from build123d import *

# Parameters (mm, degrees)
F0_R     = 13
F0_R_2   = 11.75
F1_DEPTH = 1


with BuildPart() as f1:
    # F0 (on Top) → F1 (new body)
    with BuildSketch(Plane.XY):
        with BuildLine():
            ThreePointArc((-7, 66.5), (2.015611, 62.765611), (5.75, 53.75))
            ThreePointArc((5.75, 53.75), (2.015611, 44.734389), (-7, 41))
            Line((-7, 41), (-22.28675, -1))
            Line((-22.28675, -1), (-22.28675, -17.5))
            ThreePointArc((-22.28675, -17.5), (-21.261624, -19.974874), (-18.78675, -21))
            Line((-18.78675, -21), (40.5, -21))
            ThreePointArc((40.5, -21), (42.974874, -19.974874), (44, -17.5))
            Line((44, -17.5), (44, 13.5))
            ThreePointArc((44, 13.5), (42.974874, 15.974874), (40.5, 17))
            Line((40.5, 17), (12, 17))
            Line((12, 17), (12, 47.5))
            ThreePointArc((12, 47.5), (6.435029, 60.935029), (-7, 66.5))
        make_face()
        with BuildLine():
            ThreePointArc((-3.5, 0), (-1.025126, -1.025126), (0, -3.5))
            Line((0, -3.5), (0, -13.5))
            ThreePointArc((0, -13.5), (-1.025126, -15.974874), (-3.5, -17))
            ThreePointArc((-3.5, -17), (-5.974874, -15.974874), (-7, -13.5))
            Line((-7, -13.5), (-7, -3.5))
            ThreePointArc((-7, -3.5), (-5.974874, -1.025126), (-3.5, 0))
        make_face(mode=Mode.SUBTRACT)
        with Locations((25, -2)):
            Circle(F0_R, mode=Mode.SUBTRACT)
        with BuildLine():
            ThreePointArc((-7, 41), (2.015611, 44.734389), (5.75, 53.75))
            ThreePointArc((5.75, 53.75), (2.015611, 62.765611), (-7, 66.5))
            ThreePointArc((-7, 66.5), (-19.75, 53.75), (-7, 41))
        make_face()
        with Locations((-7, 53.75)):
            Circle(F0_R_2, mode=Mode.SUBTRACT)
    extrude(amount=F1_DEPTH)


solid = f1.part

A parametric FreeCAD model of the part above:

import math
import FreeCAD as App
import Part
import Sketcher
Q = App.Units.Quantity

doc = App.newDocument("Part")
params = doc.addObject("Spreadsheet::Sheet", "Params")
for row, (alias, value) in enumerate([
    ("sketch1_diameter", "26 mm"),
    ("sketch1_radius", "18.999999 mm"),
    ("sketch1_diameter2", "23.5 mm"),
    ("sketch1_radius2", "3.499999 mm"),
    ("sketch1_height", "31 mm"),
    ("pad1_length", "1 mm"),
], start=1):
    params.set(f"A{row}", alias)
    params.set(f"B{row}", "=" + value)
    params.setAlias(f"B{row}", alias)

body = doc.addObject("PartDesign::Body", "Body")

sketch1 = body.newObject("Sketcher::SketchObject", "Sketch")
sketch1.AttachmentSupport = (doc.getObject("XY_Plane"), [""])
sketch1.MapMode = "FlatFace"
sketch1.addGeometry(Part.ArcOfCircle(Part.Circle(App.Vector(-7, 47.5, 0), App.Vector(0, 0, 1), 19), math.radians(0), math.radians(90)), False)
sketch1.addGeometry(Part.ArcOfCircle(Part.Circle(App.Vector(-7, 53.8, 0), App.Vector(0, 0, 1), 12.8), math.radians(90), math.radians(270)), False)
sketch1.addGeometry(Part.LineSegment(App.Vector(-7, 41, 0), App.Vector(-22.3, -1, 0)), False)
sketch1.addGeometry(Part.LineSegment(App.Vector(-22.3, -1, 0), App.Vector(-22.3, -17.5, 0)), False)
sketch1.addGeometry(Part.ArcOfCircle(Part.Circle(App.Vector(-18.8, -17.5, 0), App.Vector(0, 0, 1), 3.5), math.radians(180), math.radians(270)), False)
sketch1.addGeometry(Part.LineSegment(App.Vector(-18.8, -21, 0), App.Vector(40.5, -21, 0)), False)
sketch1.addGeometry(Part.ArcOfCircle(Part.Circle(App.Vector(40.5, -17.5, 0), App.Vector(0, 0, 1), 3.5), math.radians(-90), math.radians(0)), False)
sketch1.addGeometry(Part.LineSegment(App.Vector(44, -17.5, 0), App.Vector(44, 13.5, 0)), False)
sketch1.addGeometry(Part.ArcOfCircle(Part.Circle(App.Vector(40.5, 13.5, 0), App.Vector(0, 0, 1), 3.5), math.radians(0), math.radians(90)), False)
sketch1.addGeometry(Part.LineSegment(App.Vector(40.5, 17, 0), App.Vector(12, 17, 0)), False)
sketch1.addGeometry(Part.LineSegment(App.Vector(12, 17, 0), App.Vector(12, 47.5, 0)), False)
sketch1.addGeometry(Part.ArcOfCircle(Part.Circle(App.Vector(-3.5, -3.5, 0), App.Vector(0, 0, 1), 3.5), math.radians(90), math.radians(180)), False)
sketch1.addGeometry(Part.ArcOfCircle(Part.Circle(App.Vector(-3.5, -3.5, 0), App.Vector(0, 0, 1), 3.5), math.radians(0), math.radians(90)), False)
sketch1.addGeometry(Part.LineSegment(App.Vector(0, -3.5, 0), App.Vector(0, -13.5, 0)), False)
sketch1.addGeometry(Part.ArcOfCircle(Part.Circle(App.Vector(-3.5, -13.5, 0), App.Vector(0, 0, 1), 3.5), math.radians(-90), math.radians(0)), False)
sketch1.addGeometry(Part.ArcOfCircle(Part.Circle(App.Vector(-3.5, -13.5, 0), App.Vector(0, 0, 1), 3.5), math.radians(180), math.radians(270)), False)
sketch1.addGeometry(Part.LineSegment(App.Vector(-7, -13.5, 0), App.Vector(-7, -3.5, 0)), False)
sketch1.addGeometry(Part.Circle(App.Vector(25, -2, 0), App.Vector(0, 0, 1), 13), False)
sketch1.addGeometry(Part.Circle(App.Vector(-7, 53.8, 0), App.Vector(0, 0, 1), 11.8), False)
sketch1.addConstraint(Sketcher.Constraint("Tangent", 0, 2, 1, 1))
sketch1.addConstraint(Sketcher.Constraint("Coincident", 1, 2, 2, 1))
sketch1.addConstraint(Sketcher.Constraint("Coincident", 2, 2, 3, 1))
sketch1.addConstraint(Sketcher.Constraint("Tangent", 3, 2, 4, 1))
sketch1.addConstraint(Sketcher.Constraint("Tangent", 4, 2, 5, 1))
sketch1.addConstraint(Sketcher.Constraint("Tangent", 5, 2, 6, 1))
sketch1.addConstraint(Sketcher.Constraint("Tangent", 6, 2, 7, 1))
sketch1.addConstraint(Sketcher.Constraint("Tangent", 7, 2, 8, 1))
sketch1.addConstraint(Sketcher.Constraint("Tangent", 8, 2, 9, 1))
sketch1.addConstraint(Sketcher.Constraint("Coincident", 9, 2, 10, 1))
sketch1.addConstraint(Sketcher.Constraint("Tangent", 10, 2, 0, 1))
sketch1.addConstraint(Sketcher.Constraint("Tangent", 11, 1, 12, 2))
sketch1.addConstraint(Sketcher.Constraint("Tangent", 12, 1, 13, 1))
sketch1.addConstraint(Sketcher.Constraint("Tangent", 13, 2, 14, 2))
sketch1.addConstraint(Sketcher.Constraint("Tangent", 14, 1, 15, 2))
sketch1.addConstraint(Sketcher.Constraint("Tangent", 15, 1, 16, 1))
sketch1.addConstraint(Sketcher.Constraint("Tangent", 16, 2, 11, 2))
sketch1.addConstraint(Sketcher.Constraint("Vertical", 3))
sketch1.addConstraint(Sketcher.Constraint("Horizontal", 5))
sketch1.addConstraint(Sketcher.Constraint("Vertical", 7))
sketch1.addConstraint(Sketcher.Constraint("Horizontal", 9))
sketch1.addConstraint(Sketcher.Constraint("Vertical", 10))
sketch1.addConstraint(Sketcher.Constraint("Vertical", 13))
sketch1.addConstraint(Sketcher.Constraint("Vertical", 16))
sketch1.addConstraint(Sketcher.Constraint("Coincident", 18, 3, 1, 3))
sketch1.addConstraint(Sketcher.Constraint("Equal", 4, 6))
sketch1.addConstraint(Sketcher.Constraint("Equal", 6, 8))
sketch1.addConstraint(Sketcher.Constraint("Equal", 8, 11))
sketch1.addConstraint(Sketcher.Constraint("Equal", 11, 12))
sketch1.addConstraint(Sketcher.Constraint("Equal", 12, 14))
sketch1.addConstraint(Sketcher.Constraint("PointOnObject", 11, 1, -1))
sketch1.addConstraint(Sketcher.Constraint("PointOnObject", 12, 1, -2))
sketch1.addConstraint(Sketcher.Constraint("Vertical", 0, 3, 1, 3))
sketch1.addConstraint(Sketcher.Constraint("Vertical", 0, 2, 1, 2))
sketch1.addConstraint(Sketcher.Constraint("Vertical", 15, 3, 11, 1))
sketch1.addConstraint(Sketcher.Constraint("Vertical", 11, 1, 14, 1))
sketch1.addConstraint(Sketcher.Constraint("Vertical", 1, 2, 15, 1))
sketch1.addConstraint(Sketcher.Constraint("Diameter", 17, Q("26 mm")))
sketch1.addConstraint(Sketcher.Constraint("Radius", 0, Q("18.999999 mm")))
sketch1.addConstraint(Sketcher.Constraint("Diameter", 18, Q("23.5 mm")))
sketch1.addConstraint(Sketcher.Constraint("Radius", 4, Q("3.499999 mm")))
sketch1.addConstraint(Sketcher.Constraint("DistanceY", 7, 1, 7, 2, Q("31 mm")))
sketch1.addConstraint(Sketcher.Constraint("DistanceY", 13, 2, 13, 1, Q("10 mm")))
sketch1.addConstraint(Sketcher.Constraint("Angle", 2, Q("-110 deg")))
sketch1.addConstraint(Sketcher.Constraint("Radius", 1, Q("12.75 mm")))
sketch1.addConstraint(Sketcher.Constraint("DistanceX", 9, 2, 9, 1, Q("28.5 mm")))
sketch1.addConstraint(Sketcher.Constraint("DistanceY", 3, 2, 3, 1, Q("16.5 mm")))
sketch1.addConstraint(Sketcher.Constraint("DistanceY", 10, 1, 10, 2, Q("30.5 mm")))
sketch1.addConstraint(Sketcher.Constraint("DistanceX", -1, 1, 17, 3, Q("25 mm")))
sketch1.addConstraint(Sketcher.Constraint("DistanceY", 17, 3, -1, 1, Q("2 mm")))
sketch1.addConstraint(Sketcher.Constraint("DistanceY", -1, 1, 1, 2, Q("41 mm")))
sketch1.setExpression("Constraints[37]", "Params.sketch1_diameter")
sketch1.setExpression("Constraints[38]", "Params.sketch1_radius")
sketch1.setExpression("Constraints[39]", "Params.sketch1_diameter2")
sketch1.setExpression("Constraints[40]", "Params.sketch1_radius2")
sketch1.setExpression("Constraints[41]", "Params.sketch1_height")
pad1 = body.newObject("PartDesign::Pad", "Pad")
pad1.Profile = sketch1
pad1.setExpression("Length", "Params.pad1_length")

doc.recompute()
